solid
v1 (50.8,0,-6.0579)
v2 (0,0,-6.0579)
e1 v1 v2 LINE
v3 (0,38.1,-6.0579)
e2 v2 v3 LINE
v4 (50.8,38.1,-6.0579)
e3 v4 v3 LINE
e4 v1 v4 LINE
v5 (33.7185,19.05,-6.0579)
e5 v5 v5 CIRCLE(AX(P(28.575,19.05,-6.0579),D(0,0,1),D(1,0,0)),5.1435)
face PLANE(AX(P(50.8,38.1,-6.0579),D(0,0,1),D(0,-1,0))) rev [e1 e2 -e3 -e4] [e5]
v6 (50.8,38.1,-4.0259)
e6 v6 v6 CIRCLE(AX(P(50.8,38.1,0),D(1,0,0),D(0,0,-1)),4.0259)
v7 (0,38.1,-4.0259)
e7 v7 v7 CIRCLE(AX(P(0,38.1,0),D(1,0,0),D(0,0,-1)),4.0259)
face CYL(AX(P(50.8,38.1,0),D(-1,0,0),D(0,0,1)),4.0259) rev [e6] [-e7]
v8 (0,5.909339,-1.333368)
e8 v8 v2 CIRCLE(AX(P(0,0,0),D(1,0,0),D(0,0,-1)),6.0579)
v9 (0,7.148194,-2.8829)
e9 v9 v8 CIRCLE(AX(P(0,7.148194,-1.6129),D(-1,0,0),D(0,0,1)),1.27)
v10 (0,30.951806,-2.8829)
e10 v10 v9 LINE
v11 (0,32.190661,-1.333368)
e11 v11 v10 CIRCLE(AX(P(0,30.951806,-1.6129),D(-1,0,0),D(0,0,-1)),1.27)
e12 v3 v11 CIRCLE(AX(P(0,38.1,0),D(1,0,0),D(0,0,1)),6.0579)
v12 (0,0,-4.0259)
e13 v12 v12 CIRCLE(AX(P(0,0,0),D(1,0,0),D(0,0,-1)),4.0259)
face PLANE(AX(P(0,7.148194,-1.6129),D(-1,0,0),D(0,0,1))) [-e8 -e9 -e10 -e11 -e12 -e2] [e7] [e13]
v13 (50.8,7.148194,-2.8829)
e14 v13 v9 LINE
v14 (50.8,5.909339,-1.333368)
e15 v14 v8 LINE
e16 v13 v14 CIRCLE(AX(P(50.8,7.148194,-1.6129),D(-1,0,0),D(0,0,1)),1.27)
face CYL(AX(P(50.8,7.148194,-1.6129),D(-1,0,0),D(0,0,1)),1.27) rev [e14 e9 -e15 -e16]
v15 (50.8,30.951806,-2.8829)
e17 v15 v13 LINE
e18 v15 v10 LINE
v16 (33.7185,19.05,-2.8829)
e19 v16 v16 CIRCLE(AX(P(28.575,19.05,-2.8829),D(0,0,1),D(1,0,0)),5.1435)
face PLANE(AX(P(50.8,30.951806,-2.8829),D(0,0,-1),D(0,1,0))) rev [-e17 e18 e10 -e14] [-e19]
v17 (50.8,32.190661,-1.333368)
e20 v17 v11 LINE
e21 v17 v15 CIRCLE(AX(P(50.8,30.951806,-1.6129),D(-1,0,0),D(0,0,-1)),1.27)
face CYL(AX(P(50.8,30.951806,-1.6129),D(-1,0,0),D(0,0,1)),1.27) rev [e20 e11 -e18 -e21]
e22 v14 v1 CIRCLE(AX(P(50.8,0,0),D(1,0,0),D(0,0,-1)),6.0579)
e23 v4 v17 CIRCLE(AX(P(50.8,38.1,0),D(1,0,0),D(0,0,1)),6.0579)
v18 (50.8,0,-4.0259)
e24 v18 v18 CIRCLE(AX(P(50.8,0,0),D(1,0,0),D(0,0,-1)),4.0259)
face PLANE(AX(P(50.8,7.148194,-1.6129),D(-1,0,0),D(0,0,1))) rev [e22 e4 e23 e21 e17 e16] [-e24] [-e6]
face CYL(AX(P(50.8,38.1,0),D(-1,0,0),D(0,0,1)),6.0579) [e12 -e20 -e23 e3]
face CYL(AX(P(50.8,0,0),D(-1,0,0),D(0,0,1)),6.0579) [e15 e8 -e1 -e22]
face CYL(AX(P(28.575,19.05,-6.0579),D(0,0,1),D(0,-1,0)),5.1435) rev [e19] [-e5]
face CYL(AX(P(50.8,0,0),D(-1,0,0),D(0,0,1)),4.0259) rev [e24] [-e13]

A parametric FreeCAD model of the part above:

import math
import FreeCAD as App
import Part
import Sketcher

V = App.Vector
Q = App.Units.Quantity

doc = App.newDocument("Part")
params = doc.addObject("Spreadsheet::Sheet", "Params")
for row, (alias, value) in enumerate([
    ("sketch1_radius", "0.05 in"),
    ("sketch1_diameter", "0.317 in"),
    ("sketch1_width", "1.5 in"),
    ("pad1_length", "2 in"),
    ("sketch2_diameter", "0.405 in"),
], start=1):
    params.set(f"A{row}", alias)
    params.set(f"B{row}", "=" + value)
    params.setAlias(f"B{row}", alias)

body = doc.addObject("PartDesign::Body", "Body")

# Sketch on YZ plane
sketch1 = body.newObject("Sketcher::SketchObject", "Sketch")
sketch1.AttachmentSupport = (doc.getObject("YZ_Plane"), [""])
sketch1.MapMode = "FlatFace"
sketch1.addGeometry(Part.LineSegment(V(31, -2.9, 0), V(7.1, -2.9, 0)), False)
sketch1.addGeometry(Part.ArcOfCircle(Part.Circle(V(7.1, -1.6, 0), V(0, 0, 1), 1.3), math.radians(167), math.radians(270)), False)
sketch1.addGeometry(Part.ArcOfCircle(Part.Circle(V(0, 0, 0), V(0, 0, 1), 6.1), math.radians(-13), math.radians(270)), False)
sketch1.addGeometry(Part.LineSegment(V(0, -6.1, 0), V(38.1, -6.1, 0)), False)
sketch1.addGeometry(Part.ArcOfCircle(Part.Circle(V(38.1, 0, 0), V(0, 0, 1), 6.1), math.radians(-90), math.radians(193)), False)
sketch1.addGeometry(Part.ArcOfCircle(Part.Circle(V(31, -1.6, 0), V(0, 0, 1), 1.3), math.radians(-90), math.radians(13)), False)
sketch1.addGeometry(Part.Circle(V(0, 0, 0), V(0, 0, 1), 4), False)
sketch1.addGeometry(Part.Circle(V(38.1, 0, 0), V(0, 0, 1), 4), False)
sketch1.addConstraint(Sketcher.Constraint("Tangent", 0, 2, 1, 2))
sketch1.addConstraint(Sketcher.Constraint("Tangent", 1, 1, 2, 1))
sketch1.addConstraint(Sketcher.Constraint("Tangent", 2, 2, 3, 1))
sketch1.addConstraint(Sketcher.Constraint("Tangent", 3, 2, 4, 1))
sketch1.addConstraint(Sketcher.Constraint("Tangent", 4, 2, 5, 2))
sketch1.addConstraint(Sketcher.Constraint("Tangent", 5, 1, 0, 1))
sketch1.addConstraint(Sketcher.Constraint("Horizontal", 0))
sketch1.addConstraint(Sketcher.Constraint("Horizontal", 3))
sketch1.addConstraint(Sketcher.Constraint("Coincident", 2, 3, -1, 1))
sketch1.addConstraint(Sketcher.Constraint("Coincident", 6, 3, -1, 1))
sketch1.addConstraint(Sketcher.Constraint("Coincident", 7, 3, 4, 3))
sketch1.addConstraint(Sketcher.Constraint("Equal", 2, 4))
sketch1.addConstraint(Sketcher.Constraint("Equal", 1, 5))
sketch1.addConstraint(Sketcher.Constraint("Equal", 6, 7))
sketch1.addConstraint(Sketcher.Constraint("Radius", 1, Q("0.05 in")))
sketch1.addConstraint(Sketcher.Constraint("Diameter", 6, Q("0.317 in")))
sketch1.addConstraint(Sketcher.Constraint("DistanceX", 3, 1, 3, 2, Q("1.5 in")))
sketch1.addConstraint(Sketcher.Constraint("Radius", 2, Q("0.2385 in")))
sketch1.addConstraint(Sketcher.Constraint("DistanceY", 2, 2, 0, 2, Q("0.125 in")))
sketch1.setExpression("Constraints[14]", "Params.sketch1_radius")
sketch1.setExpression("Constraints[15]", "Params.sketch1_diameter")
sketch1.setExpression("Constraints[16]", "Params.sketch1_width")
pad1 = body.newObject("PartDesign::Pad", "Pad")
pad1.Profile = sketch1
pad1.setExpression("Length", "Params.pad1_length")

# Sketch on XY plane
sketch2 = body.newObject("Sketcher::SketchObject", "Sketch001")
sketch2.AttachmentSupport = (doc.getObject("XY_Plane"), [""])
sketch2.MapMode = "FlatFace"
sketch2.AttachmentOffset = App.Placement(V(0, 0, -0.1135 * 25.4), App.Rotation())
sketch2.addGeometry(Part.Circle(V(29, 19, 0), V(0, 0, 1), 5), False)
sketch2.addConstraint(Sketcher.Constraint("Diameter", 0, Q("0.405 in")))
sketch2.addConstraint(Sketcher.Constraint("DistanceY", -1, 1, 0, 3, Q("0.75 in")))
sketch2.addConstraint(Sketcher.Constraint("DistanceX", -1, 1, 0, 3, Q("1.125 in")))
sketch2.setExpression("Constraints[0]", "Params.sketch2_diameter")
pocket1 = body.newObject("PartDesign::Pocket", "Pocket")
pocket1.Profile = sketch2
pocket1.Type = "ThroughAll"

doc.recompute()
